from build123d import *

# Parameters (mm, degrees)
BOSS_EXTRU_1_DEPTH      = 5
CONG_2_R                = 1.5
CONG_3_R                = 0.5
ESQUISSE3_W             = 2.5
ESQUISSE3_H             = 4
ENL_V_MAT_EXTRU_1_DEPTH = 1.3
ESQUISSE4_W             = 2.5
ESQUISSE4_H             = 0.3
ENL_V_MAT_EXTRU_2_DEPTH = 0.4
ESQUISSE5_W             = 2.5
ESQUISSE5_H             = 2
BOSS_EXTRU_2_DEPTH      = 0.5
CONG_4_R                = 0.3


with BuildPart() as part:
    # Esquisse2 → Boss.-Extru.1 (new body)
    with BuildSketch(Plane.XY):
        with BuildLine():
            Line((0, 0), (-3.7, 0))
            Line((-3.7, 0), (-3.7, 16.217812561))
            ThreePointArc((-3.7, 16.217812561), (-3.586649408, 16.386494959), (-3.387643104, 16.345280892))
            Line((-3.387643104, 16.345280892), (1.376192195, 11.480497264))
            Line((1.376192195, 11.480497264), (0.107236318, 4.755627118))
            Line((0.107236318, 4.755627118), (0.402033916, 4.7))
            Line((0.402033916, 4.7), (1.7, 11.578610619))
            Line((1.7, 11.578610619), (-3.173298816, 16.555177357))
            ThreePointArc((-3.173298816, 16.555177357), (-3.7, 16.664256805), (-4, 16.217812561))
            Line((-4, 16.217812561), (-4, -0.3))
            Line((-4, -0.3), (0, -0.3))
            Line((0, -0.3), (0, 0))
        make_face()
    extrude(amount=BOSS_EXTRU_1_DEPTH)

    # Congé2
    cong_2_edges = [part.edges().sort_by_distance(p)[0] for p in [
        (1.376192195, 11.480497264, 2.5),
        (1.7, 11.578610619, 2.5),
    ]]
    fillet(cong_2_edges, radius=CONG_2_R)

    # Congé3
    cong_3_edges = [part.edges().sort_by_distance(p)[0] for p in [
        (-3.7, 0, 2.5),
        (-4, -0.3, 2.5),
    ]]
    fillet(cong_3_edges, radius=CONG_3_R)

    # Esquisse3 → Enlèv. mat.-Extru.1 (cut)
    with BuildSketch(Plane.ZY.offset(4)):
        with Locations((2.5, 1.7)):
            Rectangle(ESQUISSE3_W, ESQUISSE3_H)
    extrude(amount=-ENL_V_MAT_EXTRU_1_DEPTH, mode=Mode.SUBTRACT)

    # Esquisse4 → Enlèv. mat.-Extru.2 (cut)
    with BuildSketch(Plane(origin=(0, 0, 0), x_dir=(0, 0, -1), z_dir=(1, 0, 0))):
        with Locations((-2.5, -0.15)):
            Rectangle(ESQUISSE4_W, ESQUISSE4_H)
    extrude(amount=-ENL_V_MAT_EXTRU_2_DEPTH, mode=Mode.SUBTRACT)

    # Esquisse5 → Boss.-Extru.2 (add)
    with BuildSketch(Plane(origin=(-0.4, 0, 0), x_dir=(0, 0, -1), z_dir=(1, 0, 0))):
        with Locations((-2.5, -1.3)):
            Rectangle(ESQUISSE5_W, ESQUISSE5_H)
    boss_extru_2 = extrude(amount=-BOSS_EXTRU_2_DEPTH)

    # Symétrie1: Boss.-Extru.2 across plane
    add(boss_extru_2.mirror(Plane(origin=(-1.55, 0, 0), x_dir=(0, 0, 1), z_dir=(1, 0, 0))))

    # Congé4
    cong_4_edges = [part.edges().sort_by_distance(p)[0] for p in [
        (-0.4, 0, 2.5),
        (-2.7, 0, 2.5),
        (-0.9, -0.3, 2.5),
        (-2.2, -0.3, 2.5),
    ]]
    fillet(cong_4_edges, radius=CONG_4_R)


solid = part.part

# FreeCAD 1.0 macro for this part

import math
import FreeCAD as App
import Part
import Sketcher

V = App.Vector
Q = App.Units.Quantity


def edges_at(feature, points):
    """Names of the edges that pass closest to the given points."""
    edges = feature.Shape.Edges
    near = lambda p: min(range(len(edges)), key=lambda i: edges[i].distToShape(Part.Vertex(*p))[0])
    return sorted({f"Edge{near(p) + 1}" for p in points})

doc = App.newDocument("Part")
body = doc.addObject("PartDesign::Body", "Body")

sketch1 = body.newObject("Sketcher::SketchObject", "Sketch")
sketch1.AttachmentSupport = (doc.getObject("XY_Plane"), [""])
sketch1.MapMode = "FlatFace"
sketch1.addGeometry(Part.LineSegment(V(0, 0, 0), V(-3.7, 0, 0)), False)
sketch1.addGeometry(Part.LineSegment(V(-3.7, 0, 0), V(-3.7, 16.217813, 0)), False)
sketch1.addGeometry(Part.ArcOfCircle(Part.Circle(V(-3.517813, 16.217813, 0), V(0, 0, 1), 0.182187), math.radians(44.399322), math.radians(180)), False)
sketch1.addGeometry(Part.LineSegment(V(-3.387643, 16.345281, 0), V(1.376192, 11.480497, 0)), False)
sketch1.addGeometry(Part.LineSegment(V(1.376192, 11.480497, 0), V(0.107236, 4.755627, 0)), False)
sketch1.addGeometry(Part.LineSegment(V(0.107236, 4.755627, 0), V(0.402034, 4.7, 0)), False)
sketch1.addGeometry(Part.LineSegment(V(0.402034, 4.7, 0), V(1.7, 11.578611, 0)), False)
sketch1.addGeometry(Part.LineSegment(V(1.7, 11.578611, 0), V(-3.173299, 16.555177, 0)), False)
sketch1.addGeometry(Part.ArcOfCircle(Part.Circle(V(-3.517813, 16.217813, 0), V(0, 0, 1), 0.482187), math.radians(44.399322), math.radians(180)), False)
sketch1.addGeometry(Part.LineSegment(V(-4, 16.217813, 0), V(-4, -0.3, 0)), False)
sketch1.addGeometry(Part.LineSegment(V(-4, -0.3, 0), V(0, -0.3, 0)), False)
sketch1.addGeometry(Part.LineSegment(V(0, -0.3, 0), V(0, 0, 0)), False)
sketch1.addConstraint(Sketcher.Constraint("Coincident", 0, 2, 1, 1))
sketch1.addConstraint(Sketcher.Constraint("Coincident", 1, 2, 2, 2))
sketch1.addConstraint(Sketcher.Constraint("Coincident", 2, 1, 3, 1))
sketch1.addConstraint(Sketcher.Constraint("Coincident", 3, 2, 4, 1))
sketch1.addConstraint(Sketcher.Constraint("Coincident", 4, 2, 5, 1))
sketch1.addConstraint(Sketcher.Constraint("Coincident", 5, 2, 6, 1))
sketch1.addConstraint(Sketcher.Constraint("Coincident", 6, 2, 7, 1))
sketch1.addConstraint(Sketcher.Constraint("Coincident", 7, 2, 8, 1))
sketch1.addConstraint(Sketcher.Constraint("Coincident", 8, 2, 9, 1))
sketch1.addConstraint(Sketcher.Constraint("Coincident", 9, 2, 10, 1))
sketch1.addConstraint(Sketcher.Constraint("Coincident", 10, 2, 11, 1))
sketch1.addConstraint(Sketcher.Constraint("Coincident", 11, 2, 0, 1))
sketch1.addConstraint(Sketcher.Constraint("Horizontal", 0))
sketch1.addConstraint(Sketcher.Constraint("Vertical", 1))
sketch1.addConstraint(Sketcher.Constraint("Vertical", 9))
sketch1.addConstraint(Sketcher.Constraint("Horizontal", 10))
sketch1.addConstraint(Sketcher.Constraint("Vertical", 11))
sketch1.addConstraint(Sketcher.Constraint("Coincident", 11, 2, -1, 1))
sketch1.addConstraint(Sketcher.Constraint("Coincident", 8, 3, 2, 3))
sketch1.addConstraint(Sketcher.Constraint("DistanceX", 10, 1, 10, 2, Q("4 mm")))
sketch1.addConstraint(Sketcher.Constraint("Distance", 6, Q("7 mm")))
sketch1.addConstraint(Sketcher.Constraint("DistanceX", 0, 2, 0, 1, Q("3.7 mm")))
sketch1.addConstraint(Sketcher.Constraint("DistanceY", 11, 1, 11, 2, Q("0.3 mm")))
sketch1.addConstraint(Sketcher.Constraint("DistanceY", 9, 2, 5, 2, Q("5 mm")))
sketch1.addConstraint(Sketcher.Constraint("Distance", 5, Q("0.3 mm")))
sketch1.addConstraint(Sketcher.Constraint("DistanceX", -1, 1, 6, 2, Q("1.7 mm")))
sketch1.addConstraint(Sketcher.Constraint("Radius", 2, Q("0.182187 mm")))
sketch1.addConstraint(Sketcher.Constraint("DistanceX", 7, 2, -1, 1, Q("3.173299 mm")))
sketch1.addConstraint(Sketcher.Constraint("DistanceY", 6, 2, 2, 3, Q("4.639202 mm")))
sketch1.addConstraint(Sketcher.Constraint("DistanceY", 1, 1, 1, 2, Q("16.217813 mm")))
sketch1.addConstraint(Sketcher.Constraint("DistanceY", 9, 2, 9, 1, Q("16.517813 mm")))
sketch1.addConstraint(Sketcher.Constraint("DistanceY", -1, 1, 2, 1, Q("16.345281 mm")))
sketch1.addConstraint(Sketcher.Constraint("DistanceY", -1, 1, 6, 2, Q("11.578611 mm")))
sketch1.addConstraint(Sketcher.Constraint("DistanceY", 4, 2, 3, 2, Q("6.72487 mm")))
sketch1.addConstraint(Sketcher.Constraint("DistanceX", 2, 3, 4, 2, Q("3.625049 mm")))
sketch1.addConstraint(Sketcher.Constraint("DistanceX", 5, 2, 3, 2, Q("0.974158 mm")))
pad1 = body.newObject("PartDesign::Pad", "Pad")
pad1.Profile = sketch1
pad1.Length = 5
doc.recompute()

fillet = body.newObject("PartDesign::Fillet", "Fillet")
fillet.Base = (pad1, edges_at(pad1, [(1.376, 11.48, 2.5), (1.7, 11.579, 2.5)]))
fillet.Radius = 1.5
doc.recompute()

fillet2 = body.newObject("PartDesign::Fillet", "Fillet001")
fillet2.Base = (fillet, edges_at(fillet, [(-3.7, 0, 2.5), (-4, -0.3, 2.5)]))
fillet2.Radius = 0.5

sketch2 = body.newObject("Sketcher::SketchObject", "Sketch001")
sketch2.AttachmentSupport = (doc.getObject("YZ_Plane"), [""])
sketch2.MapMode = "FlatFace"
sketch2.AttachmentOffset = App.Placement(V(0, 0, -4), App.Rotation())
sketch2.addGeometry(Part.LineSegment(V(3.7, 1.2, 0), V(-0.3, 1.2, 0)), False)
sketch2.addGeometry(Part.LineSegment(V(-0.3, 1.2, 0), V(-0.3, 3.8, 0)), False)
sketch2.addGeometry(Part.LineSegment(V(-0.3, 3.8, 0), V(3.7, 3.8, 0)), False)
sketch2.addGeometry(Part.LineSegment(V(3.7, 3.8, 0), V(3.7, 1.2, 0)), False)
sketch2.addConstraint(Sketcher.Constraint("Coincident", 0, 2, 1, 1))
sketch2.addConstraint(Sketcher.Constraint("Coincident", 1, 2, 2, 1))
sketch2.addConstraint(Sketcher.Constraint("Coincident", 2, 2, 3, 1))
sketch2.addConstraint(Sketcher.Constraint("Coincident", 3, 2, 0, 1))
sketch2.addConstraint(Sketcher.Constraint("Horizontal", 0))
sketch2.addConstraint(Sketcher.Constraint("Vertical", 1))
sketch2.addConstraint(Sketcher.Constraint("Horizontal", 2))
sketch2.addConstraint(Sketcher.Constraint("Vertical", 3))
sketch2.addConstraint(Sketcher.Constraint("DistanceX", 0, 2, 0, 1, Q("4 mm")))
sketch2.addConstraint(Sketcher.Constraint("DistanceY", 1, 1, 1, 2, Q("2.5 mm")))
sketch2.addConstraint(Sketcher.Constraint("DistanceX", 0, 2, -1, 1, Q("0.3 mm")))
sketch2.addConstraint(Sketcher.Constraint("DistanceY", -1, 1, 0, 2, Q("1.25 mm")))
pocket1 = body.newObject("PartDesign::Pocket", "Pocket")
pocket1.Profile = sketch2
pocket1.Length = 1.3
pocket1.Reversed = True

sketch3 = body.newObject("Sketcher::SketchObject", "Sketch002")
sketch3.AttachmentSupport = (doc.getObject("YZ_Plane"), [""])
sketch3.MapMode = "FlatFace"
sketch3.addGeometry(Part.LineSegment(V(0, 3.75, 0), V(-0.3, 3.75, 0)), False)
sketch3.addGeometry(Part.LineSegment(V(-0.3, 3.75, 0), V(-0.3, 1.25, 0)), False)
sketch3.addGeometry(Part.LineSegment(V(-0.3, 1.25, 0), V(0, 1.25, 0)), False)
sketch3.addGeometry(Part.LineSegment(V(0, 1.25, 0), V(0, 3.75, 0)), False)
sketch3.addConstraint(Sketcher.Constraint("Coincident", 0, 2, 1, 1))
sketch3.addConstraint(Sketcher.Constraint("Coincident", 1, 2, 2, 1))
sketch3.addConstraint(Sketcher.Constraint("Coincident", 2, 2, 3, 1))
sketch3.addConstraint(Sketcher.Constraint("Coincident", 3, 2, 0, 1))
sketch3.addConstraint(Sketcher.Constraint("Horizontal", 0))
sketch3.addConstraint(Sketcher.Constraint("Vertical", 1))
sketch3.addConstraint(Sketcher.Constraint("Horizontal", 2))
sketch3.addConstraint(Sketcher.Constraint("Vertical", 3))
sketch3.addConstraint(Sketcher.Constraint("PointOnObject", 2, 2, -2))
sketch3.addConstraint(Sketcher.Constraint("DistanceX", 0, 2, 0, 1, Q("0.3 mm")))
sketch3.addConstraint(Sketcher.Constraint("DistanceY", 1, 2, 1, 1, Q("2.5 mm")))
sketch3.addConstraint(Sketcher.Constraint("DistanceY", -1, 1, 0, 2, Q("3.75 mm")))
pocket2 = body.newObject("PartDesign::Pocket", "Pocket001")
pocket2.Profile = sketch3
pocket2.Length = 0.4

sketch4 = body.newObject("Sketcher::SketchObject", "Sketch003")
sketch4.AttachmentSupport = (doc.getObject("YZ_Plane"), [""])
sketch4.MapMode = "FlatFace"
sketch4.AttachmentOffset = App.Placement(V(0, 0, -0.4), App.Rotation())
sketch4.addGeometry(Part.LineSegment(V(-0.3, 3.8, 0), V(-2.3, 3.8, 0)), False)
sketch4.addGeometry(Part.LineSegment(V(-2.3, 3.8, 0), V(-2.3, 1.2, 0)), False)
sketch4.addGeometry(Part.LineSegment(V(-2.3, 1.2, 0), V(-0.3, 1.2, 0)), False)
sketch4.addGeometry(Part.LineSegment(V(-0.3, 1.2, 0), V(-0.3, 3.8, 0)), False)
sketch4.addConstraint(Sketcher.Constraint("Coincident", 0, 2, 1, 1))
sketch4.addConstraint(Sketcher.Constraint("Coincident", 1, 2, 2, 1))
sketch4.addConstraint(Sketcher.Constraint("Coincident", 2, 2, 3, 1))
sketch4.addConstraint(Sketcher.Constraint("Coincident", 3, 2, 0, 1))
sketch4.addConstraint(Sketcher.Constraint("Horizontal", 0))
sketch4.addConstraint(Sketcher.Constraint("Vertical", 1))
sketch4.addConstraint(Sketcher.Constraint("Horizontal", 2))
sketch4.addConstraint(Sketcher.Constraint("Vertical", 3))
sketch4.addConstraint(Sketcher.Constraint("DistanceX", 0, 2, 0, 1, Q("2 mm")))
sketch4.addConstraint(Sketcher.Constraint("DistanceY", 1, 2, 1, 1, Q("2.5 mm")))
sketch4.addConstraint(Sketcher.Constraint("DistanceX", 0, 2, -1, 1, Q("2.3 mm")))
sketch4.addConstraint(Sketcher.Constraint("DistanceY", -1, 1, 0, 2, Q("3.75 mm")))
pad2 = body.newObject("PartDesign::Pad", "Pad001")
pad2.Profile = sketch4
pad2.Length = 0.5
pad2.Reversed = True
doc.recompute()

datumplane = body.newObject("PartDesign::Plane", "DatumPlane")
datumplane.AttachmentSupport = (doc.getObject("YZ_Plane"), [""])
datumplane.MapMode = "FlatFace"
datumplane.AttachmentOffset = App.Placement(V(0, 0, -1.55), App.Rotation())
mirrored = body.newObject("PartDesign::Mirrored", "Mirrored")
mirrored.Originals = [pad2]
mirrored.MirrorPlane = (datumplane, [""])
body.Tip = mirrored
doc.recompute()

fillet3 = body.newObject("PartDesign::Fillet", "Fillet002")
fillet3.Base = (mirrored, edges_at(mirrored, [
    (-0.4, 0, 2.5),
    (-2.7, 0, 2.5),
    (-0.9, -0.3, 2.5),
    (-2.2, -0.3, 2.5),
]))
fillet3.Radius = 0.3

doc.recompute()
